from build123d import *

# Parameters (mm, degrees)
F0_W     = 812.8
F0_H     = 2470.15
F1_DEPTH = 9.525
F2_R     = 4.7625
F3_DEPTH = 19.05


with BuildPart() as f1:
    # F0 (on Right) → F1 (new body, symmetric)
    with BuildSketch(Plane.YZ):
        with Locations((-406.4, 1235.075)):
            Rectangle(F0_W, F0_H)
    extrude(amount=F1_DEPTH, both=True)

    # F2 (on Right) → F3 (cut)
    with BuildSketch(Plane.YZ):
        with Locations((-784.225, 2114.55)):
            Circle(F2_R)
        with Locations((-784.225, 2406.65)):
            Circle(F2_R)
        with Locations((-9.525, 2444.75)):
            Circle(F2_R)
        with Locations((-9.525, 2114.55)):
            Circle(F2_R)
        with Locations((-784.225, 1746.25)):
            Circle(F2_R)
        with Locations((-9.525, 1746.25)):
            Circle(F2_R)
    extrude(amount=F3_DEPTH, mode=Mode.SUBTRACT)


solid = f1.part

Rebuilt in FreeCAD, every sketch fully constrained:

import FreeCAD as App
import Part
import Sketcher
from FreeCAD import Vector
Q = App.Units.Quantity

doc = App.newDocument("Part")
body = doc.addObject("PartDesign::Body", "Body")

# Sketch on YZ plane
sketch1 = body.newObject("Sketcher::SketchObject", "Sketch")
sketch1.AttachmentSupport = (doc.getObject("YZ_Plane"), [""])
sketch1.MapMode = "FlatFace"
sketch1.addGeometry(Part.LineSegment(Vector(-813, 2470, 0), Vector(-813, 0, 0)), False)
sketch1.addGeometry(Part.LineSegment(Vector(-813, 0, 0), Vector(0, 0, 0)), False)
sketch1.addGeometry(Part.LineSegment(Vector(0, 0, 0), Vector(0, 2470, 0)), False)
sketch1.addGeometry(Part.LineSegment(Vector(0, 2470, 0), Vector(-813, 2470, 0)), False)
sketch1.addConstraint(Sketcher.Constraint("Coincident", 0, 2, 1, 1))
sketch1.addConstraint(Sketcher.Constraint("Coincident", 1, 2, 2, 1))
sketch1.addConstraint(Sketcher.Constraint("Coincident", 2, 2, 3, 1))
sketch1.addConstraint(Sketcher.Constraint("Coincident", 3, 2, 0, 1))
sketch1.addConstraint(Sketcher.Constraint("Vertical", 0))
sketch1.addConstraint(Sketcher.Constraint("Horizontal", 1))
sketch1.addConstraint(Sketcher.Constraint("Vertical", 2))
sketch1.addConstraint(Sketcher.Constraint("Horizontal", 3))
sketch1.addConstraint(Sketcher.Constraint("Coincident", 1, 2, -1, 1))
sketch1.addConstraint(Sketcher.Constraint("DistanceX", 1, 1, 1, 2, Q("32 in")))
sketch1.addConstraint(Sketcher.Constraint("DistanceY", 0, 2, 0, 1, Q("97.25 in")))
pad1 = body.newObject("PartDesign::Pad", "Pad")
pad1.Profile = sketch1
pad1.Length = Q("0.75 in")
pad1.Midplane = True

# Sketch on YZ plane
sketch2 = body.newObject("Sketcher::SketchObject", "Sketch001")
sketch2.AttachmentSupport = (doc.getObject("YZ_Plane"), [""])
sketch2.MapMode = "FlatFace"
sketch2.addGeometry(Part.Circle(Vector(-784.2, 2114.6, 0), Vector(0, 0, 1), 4.8), False)
sketch2.addGeometry(Part.Circle(Vector(-784.2, 2406.7, 0), Vector(0, 0, 1), 4.8), False)
sketch2.addGeometry(Part.Circle(Vector(-9.5, 2444.8, 0), Vector(0, 0, 1), 4.8), False)
sketch2.addGeometry(Part.Circle(Vector(-9.5, 2114.6, 0), Vector(0, 0, 1), 4.8), False)
sketch2.addGeometry(Part.Circle(Vector(-784.2, 1746.2, 0), Vector(0, 0, 1), 4.8), False)
sketch2.addGeometry(Part.Circle(Vector(-9.5, 1746.2, 0), Vector(0, 0, 1), 4.8), False)
sketch2.addConstraint(Sketcher.Constraint("Equal", 0, 1))
sketch2.addConstraint(Sketcher.Constraint("Equal", 1, 2))
sketch2.addConstraint(Sketcher.Constraint("Equal", 2, 3))
sketch2.addConstraint(Sketcher.Constraint("Equal", 3, 4))
sketch2.addConstraint(Sketcher.Constraint("Equal", 4, 5))
sketch2.addConstraint(Sketcher.Constraint("Horizontal", 0, 3, 3, 3))
sketch2.addConstraint(Sketcher.Constraint("Horizontal", 4, 3, 5, 3))
sketch2.addConstraint(Sketcher.Constraint("Vertical", 0, 3, 1, 3))
sketch2.addConstraint(Sketcher.Constraint("Vertical", 2, 3, 3, 3))
sketch2.addConstraint(Sketcher.Constraint("Vertical", 1, 3, 4, 3))
sketch2.addConstraint(Sketcher.Constraint("Vertical", 3, 3, 5, 3))
sketch2.addConstraint(Sketcher.Constraint("Diameter", 0, Q("0.375 in")))
sketch2.addConstraint(Sketcher.Constraint("DistanceY", 0, 3, 2, 3, Q("13 in")))
sketch2.addConstraint(Sketcher.Constraint("DistanceY", 4, 3, 1, 3, Q("26 in")))
sketch2.addConstraint(Sketcher.Constraint("DistanceY", 0, 3, 1, 3, Q("11.5 in")))
sketch2.addConstraint(Sketcher.Constraint("DistanceX", 1, 3, 2, 3, Q("30.5 in")))
sketch2.addConstraint(Sketcher.Constraint("DistanceY", -1, 1, 0, 3, Q("83.25 in")))
sketch2.addConstraint(Sketcher.Constraint("DistanceX", 0, 3, -1, 1, Q("30.875 in")))
pocket1 = body.newObject("PartDesign::Pocket", "Pocket")
pocket1.Profile = sketch2
pocket1.Length = Q("0.75 in")
pocket1.Reversed = True

doc.recompute()
